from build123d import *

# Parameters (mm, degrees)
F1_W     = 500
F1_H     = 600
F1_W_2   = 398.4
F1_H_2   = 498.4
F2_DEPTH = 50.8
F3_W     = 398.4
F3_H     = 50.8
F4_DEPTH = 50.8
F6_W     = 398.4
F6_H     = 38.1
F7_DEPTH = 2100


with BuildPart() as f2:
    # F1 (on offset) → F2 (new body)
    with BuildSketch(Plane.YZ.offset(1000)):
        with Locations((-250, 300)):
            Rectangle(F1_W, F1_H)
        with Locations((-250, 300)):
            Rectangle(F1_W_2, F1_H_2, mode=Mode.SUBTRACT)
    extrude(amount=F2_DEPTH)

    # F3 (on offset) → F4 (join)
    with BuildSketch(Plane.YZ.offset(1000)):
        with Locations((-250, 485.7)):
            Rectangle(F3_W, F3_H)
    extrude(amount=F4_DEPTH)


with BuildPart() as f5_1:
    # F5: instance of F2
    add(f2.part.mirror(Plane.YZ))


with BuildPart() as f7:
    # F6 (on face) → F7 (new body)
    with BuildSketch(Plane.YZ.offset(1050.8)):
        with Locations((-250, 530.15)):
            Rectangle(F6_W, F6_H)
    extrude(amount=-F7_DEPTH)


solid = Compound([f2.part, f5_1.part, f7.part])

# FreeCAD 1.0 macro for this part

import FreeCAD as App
import Part
import Sketcher
Q = App.Units.Quantity


def add_polygon(sketch, points):
    """Adds a closed chain of lines whose ends are joined by coincident constraints."""
    first, n = sketch.GeometryCount, len(points)
    for a, b in zip(points, points[1:] + points[:1]):
        sketch.addGeometry(Part.LineSegment(App.Vector(*a, 0), App.Vector(*b, 0)), False)
    for i in range(n):
        sketch.addConstraint(Sketcher.Constraint("Coincident", first + i, 2, first + (i + 1) % n, 1))

doc = App.newDocument("Part")
body = doc.addObject("PartDesign::Body", "Body")

# Sketch on YZ plane
sketch1 = body.newObject("Sketcher::SketchObject", "Sketch")
sketch1.AttachmentSupport = (doc.getObject("YZ_Plane"), [""])
sketch1.MapMode = "FlatFace"
sketch1.AttachmentOffset = App.Placement(App.Vector(0, 0, 1000), App.Rotation())
add_polygon(sketch1, [(-500, 600), (-500, 0), (0, 0), (0, 600)])  # lines 0-3
add_polygon(sketch1, [(-51, 51), (-449, 51), (-449, 549), (-51, 549)])  # lines 4-7
sketch1.addConstraint(Sketcher.Constraint("Vertical", 0))
sketch1.addConstraint(Sketcher.Constraint("Horizontal", 1))
sketch1.addConstraint(Sketcher.Constraint("Vertical", 2))
sketch1.addConstraint(Sketcher.Constraint("Horizontal", 3))
sketch1.addConstraint(Sketcher.Constraint("Horizontal", 4))
sketch1.addConstraint(Sketcher.Constraint("Vertical", 5))
sketch1.addConstraint(Sketcher.Constraint("Horizontal", 6))
sketch1.addConstraint(Sketcher.Constraint("Vertical", 7))
sketch1.addConstraint(Sketcher.Constraint("Coincident", 1, 2, -1, 1))
sketch1.addConstraint(Sketcher.Constraint("DistanceX", 1, 1, 1, 2, Q("500 mm")))
sketch1.addConstraint(Sketcher.Constraint("DistanceY", 0, 2, 0, 1, Q("600 mm")))
sketch1.addConstraint(Sketcher.Constraint("DistanceX", 4, 2, 4, 1, Q("398.4 mm")))
sketch1.addConstraint(Sketcher.Constraint("DistanceY", 5, 1, 5, 2, Q("498.4 mm")))
sketch1.addConstraint(Sketcher.Constraint("DistanceX", 4, 2, -1, 1, Q("449.2 mm")))
sketch1.addConstraint(Sketcher.Constraint("DistanceY", -1, 1, 4, 2, Q("50.8 mm")))
pad1 = body.newObject("PartDesign::Pad", "Pad")
pad1.Profile = sketch1
pad1.Length = 50.8

# Sketch on YZ plane
sketch2 = body.newObject("Sketcher::SketchObject", "Sketch001")
sketch2.AttachmentSupport = (doc.getObject("YZ_Plane"), [""])
sketch2.MapMode = "FlatFace"
sketch2.AttachmentOffset = App.Placement(App.Vector(0, 0, 1000), App.Rotation())
add_polygon(sketch2, [(-449, 511), (-449, 460), (-51, 460), (-51, 511)])  # lines 0-3
sketch2.addConstraint(Sketcher.Constraint("Vertical", 0))
sketch2.addConstraint(Sketcher.Constraint("Horizontal", 1))
sketch2.addConstraint(Sketcher.Constraint("Vertical", 2))
sketch2.addConstraint(Sketcher.Constraint("Horizontal", 3))
sketch2.addConstraint(Sketcher.Constraint("DistanceX", 1, 1, 1, 2, Q("398.4 mm")))
sketch2.addConstraint(Sketcher.Constraint("DistanceY", 0, 2, 0, 1, Q("50.8 mm")))
sketch2.addConstraint(Sketcher.Constraint("DistanceX", 0, 2, -1, 1, Q("449.2 mm")))
sketch2.addConstraint(Sketcher.Constraint("DistanceY", -1, 1, 0, 2, Q("460.3 mm")))
pad2 = body.newObject("PartDesign::Pad", "Pad001")
pad2.Profile = sketch2
pad2.Length = 50.8
body2 = doc.addObject("PartDesign::Body", "Body001")
doc.recompute()

mirroring = doc.addObject("Part::Mirroring", "Mirroring")
mirroring.Source = body
mirroring.Base = App.Vector(0, 0, 0)
mirroring.Normal = App.Vector(1, 0, 0)
body2.BaseFeature = mirroring
doc.recompute()
body3 = doc.addObject("PartDesign::Body", "Body002")

# Sketch on YZ plane
sketch3 = body3.newObject("Sketcher::SketchObject", "Sketch002")
sketch3.AttachmentSupport = (doc.getObject("YZ_Plane002"), [""])
sketch3.MapMode = "FlatFace"
sketch3.AttachmentOffset = App.Placement(App.Vector(0, 0, 1050.8), App.Rotation())
add_polygon(sketch3, [(-449, 549), (-449, 511), (-51, 511), (-51, 549)])  # lines 0-3
sketch3.addConstraint(Sketcher.Constraint("Vertical", 0))
sketch3.addConstraint(Sketcher.Constraint("Horizontal", 1))
sketch3.addConstraint(Sketcher.Constraint("Vertical", 2))
sketch3.addConstraint(Sketcher.Constraint("Horizontal", 3))
sketch3.addConstraint(Sketcher.Constraint("DistanceX", 1, 1, 1, 2, Q("398.4 mm")))
sketch3.addConstraint(Sketcher.Constraint("DistanceY", 0, 2, 0, 1, Q("38.1 mm")))
sketch3.addConstraint(Sketcher.Constraint("DistanceX", 0, 2, -1, 1, Q("449.2 mm")))
sketch3.addConstraint(Sketcher.Constraint("DistanceY", -1, 1, 0, 2, Q("511.1 mm")))
pad3 = body3.newObject("PartDesign::Pad", "Pad002")
pad3.Profile = sketch3
pad3.Length = 2100
pad3.Reversed = True
mirroring.Visibility = False

doc.recompute()
